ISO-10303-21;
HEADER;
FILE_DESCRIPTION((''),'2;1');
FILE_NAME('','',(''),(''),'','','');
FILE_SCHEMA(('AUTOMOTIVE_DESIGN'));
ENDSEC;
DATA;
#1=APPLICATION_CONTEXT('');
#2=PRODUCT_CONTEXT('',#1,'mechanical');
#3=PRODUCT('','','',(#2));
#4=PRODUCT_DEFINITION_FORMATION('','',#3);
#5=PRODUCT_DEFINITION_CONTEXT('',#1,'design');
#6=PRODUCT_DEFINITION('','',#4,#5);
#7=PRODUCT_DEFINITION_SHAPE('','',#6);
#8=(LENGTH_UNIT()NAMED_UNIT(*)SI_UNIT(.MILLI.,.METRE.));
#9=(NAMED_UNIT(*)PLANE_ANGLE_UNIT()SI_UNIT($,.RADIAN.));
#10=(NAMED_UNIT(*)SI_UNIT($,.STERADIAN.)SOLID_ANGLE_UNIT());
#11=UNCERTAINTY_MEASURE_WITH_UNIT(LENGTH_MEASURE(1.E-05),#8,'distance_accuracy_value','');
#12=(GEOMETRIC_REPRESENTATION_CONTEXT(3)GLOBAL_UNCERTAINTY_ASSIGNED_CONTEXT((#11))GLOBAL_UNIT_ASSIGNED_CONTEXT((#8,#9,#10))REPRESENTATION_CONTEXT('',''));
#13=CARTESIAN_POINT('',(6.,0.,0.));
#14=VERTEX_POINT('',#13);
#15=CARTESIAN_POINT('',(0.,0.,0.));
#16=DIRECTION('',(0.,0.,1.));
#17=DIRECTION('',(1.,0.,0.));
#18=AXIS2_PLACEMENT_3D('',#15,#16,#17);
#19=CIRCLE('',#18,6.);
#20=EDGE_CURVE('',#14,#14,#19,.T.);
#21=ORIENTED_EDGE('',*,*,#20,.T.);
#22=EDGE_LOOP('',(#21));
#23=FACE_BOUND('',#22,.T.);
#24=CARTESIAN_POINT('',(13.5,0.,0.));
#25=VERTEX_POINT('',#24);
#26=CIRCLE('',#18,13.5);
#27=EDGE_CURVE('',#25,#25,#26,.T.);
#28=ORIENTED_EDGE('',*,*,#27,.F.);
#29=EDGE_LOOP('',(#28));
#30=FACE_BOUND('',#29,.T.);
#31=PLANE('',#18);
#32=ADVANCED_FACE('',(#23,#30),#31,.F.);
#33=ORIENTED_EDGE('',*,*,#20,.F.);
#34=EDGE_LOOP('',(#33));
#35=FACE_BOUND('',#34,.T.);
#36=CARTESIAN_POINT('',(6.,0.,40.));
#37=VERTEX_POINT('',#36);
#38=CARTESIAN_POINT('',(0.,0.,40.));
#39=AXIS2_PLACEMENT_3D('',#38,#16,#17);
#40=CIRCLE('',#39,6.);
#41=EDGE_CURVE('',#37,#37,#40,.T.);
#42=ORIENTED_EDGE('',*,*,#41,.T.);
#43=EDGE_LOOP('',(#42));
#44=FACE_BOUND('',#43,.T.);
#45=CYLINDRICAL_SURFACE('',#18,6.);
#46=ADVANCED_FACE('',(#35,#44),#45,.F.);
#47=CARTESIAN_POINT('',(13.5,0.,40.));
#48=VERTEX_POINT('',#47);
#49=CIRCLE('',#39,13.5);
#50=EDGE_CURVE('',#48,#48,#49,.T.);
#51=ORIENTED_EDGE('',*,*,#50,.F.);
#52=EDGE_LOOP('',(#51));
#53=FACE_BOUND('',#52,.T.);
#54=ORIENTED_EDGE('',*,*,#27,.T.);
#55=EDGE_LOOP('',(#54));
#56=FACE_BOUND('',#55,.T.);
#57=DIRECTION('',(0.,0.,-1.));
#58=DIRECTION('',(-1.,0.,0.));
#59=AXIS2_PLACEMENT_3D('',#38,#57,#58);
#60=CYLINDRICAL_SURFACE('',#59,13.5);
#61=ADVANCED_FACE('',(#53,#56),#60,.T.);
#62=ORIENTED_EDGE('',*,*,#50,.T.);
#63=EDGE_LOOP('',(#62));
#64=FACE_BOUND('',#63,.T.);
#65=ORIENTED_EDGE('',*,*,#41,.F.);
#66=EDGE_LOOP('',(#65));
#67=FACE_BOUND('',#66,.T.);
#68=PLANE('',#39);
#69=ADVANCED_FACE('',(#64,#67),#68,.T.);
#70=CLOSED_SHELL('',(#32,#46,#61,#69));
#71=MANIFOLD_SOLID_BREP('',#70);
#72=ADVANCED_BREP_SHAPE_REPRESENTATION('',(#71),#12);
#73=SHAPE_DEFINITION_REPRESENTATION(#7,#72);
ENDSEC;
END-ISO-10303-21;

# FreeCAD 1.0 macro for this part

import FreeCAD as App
import Part
import Sketcher
Q = App.Units.Quantity

doc = App.newDocument("Part")
params = doc.addObject("Spreadsheet::Sheet", "Params")
for row, (alias, value) in enumerate([
    ("sketch1_diameter", "27 mm"),
    ("pad1_length", "40 mm"),
    ("sketch2_diameter", "12 mm"),
    ("pocket1_length", "40 mm"),
], start=1):
    params.set(f"A{row}", alias)
    params.set(f"B{row}", "=" + value)
    params.setAlias(f"B{row}", alias)

body = doc.addObject("PartDesign::Body", "Body")

# Sketch on XY plane
sketch1 = doc.addObject("Sketcher::SketchObject", "Sketch")
body.addObject(sketch1)
sketch1.AttachmentSupport = (doc.XY_Plane, [""])
sketch1.MapMode = "FlatFace"
sketch1.addGeometry(Part.Circle(App.Vector(0, 0, 0), App.Vector(0, 0, 1), 14), False)
sketch1.addConstraint([
    Sketcher.Constraint("Coincident", 0, 3, -1, 1),
    Sketcher.Constraint("Diameter", 0, Q("27 mm")),
])
sketch1.setExpression("Constraints[1]", "Params.sketch1_diameter")
pad1 = doc.addObject("PartDesign::Pad", "Pad")
body.addObject(pad1)
pad1.Profile = sketch1
pad1.setExpression("Length", "Params.pad1_length")

# Sketch on XY plane
sketch2 = doc.addObject("Sketcher::SketchObject", "Sketch001")
body.addObject(sketch2)
sketch2.AttachmentSupport = (doc.XY_Plane, [""])
sketch2.MapMode = "FlatFace"
sketch2.AttachmentOffset = App.Placement(App.Vector(0, 0, 40), App.Rotation())
sketch2.addGeometry(Part.Circle(App.Vector(0, 0, 0), App.Vector(0, 0, 1), 6), False)
sketch2.addConstraint([
    Sketcher.Constraint("Coincident", 0, 3, -1, 1),
    Sketcher.Constraint("Diameter", 0, Q("12 mm")),
])
sketch2.setExpression("Constraints[1]", "Params.sketch2_diameter")
pocket1 = doc.addObject("PartDesign::Pocket", "Pocket")
body.addObject(pocket1)
pocket1.Profile = sketch2
pocket1.setExpression("Length", "Params.pocket1_length")

doc.recompute()
